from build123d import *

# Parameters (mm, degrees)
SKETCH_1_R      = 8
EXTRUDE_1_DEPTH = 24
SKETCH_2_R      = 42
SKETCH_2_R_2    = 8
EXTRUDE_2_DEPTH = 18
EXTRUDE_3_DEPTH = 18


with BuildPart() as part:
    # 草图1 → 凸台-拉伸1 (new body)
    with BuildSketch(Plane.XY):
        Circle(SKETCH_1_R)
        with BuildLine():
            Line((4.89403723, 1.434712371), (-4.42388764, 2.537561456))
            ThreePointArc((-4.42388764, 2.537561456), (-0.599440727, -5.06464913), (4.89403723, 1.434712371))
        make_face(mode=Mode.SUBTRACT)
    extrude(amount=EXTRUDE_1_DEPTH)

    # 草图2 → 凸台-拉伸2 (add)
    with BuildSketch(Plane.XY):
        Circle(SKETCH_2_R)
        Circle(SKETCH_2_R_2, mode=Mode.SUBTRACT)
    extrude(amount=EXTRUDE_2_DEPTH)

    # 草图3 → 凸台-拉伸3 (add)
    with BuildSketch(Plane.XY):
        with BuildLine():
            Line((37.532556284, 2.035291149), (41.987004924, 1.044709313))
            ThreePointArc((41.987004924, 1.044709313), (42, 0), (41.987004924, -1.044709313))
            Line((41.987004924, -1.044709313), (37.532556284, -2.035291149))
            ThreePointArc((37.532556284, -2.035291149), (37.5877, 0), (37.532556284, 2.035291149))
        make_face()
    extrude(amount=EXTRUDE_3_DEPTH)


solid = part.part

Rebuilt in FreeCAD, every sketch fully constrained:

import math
import FreeCAD as App
import Part
import Sketcher
Q = App.Units.Quantity

doc = App.newDocument("Part")
body = doc.addObject("PartDesign::Body", "Body")

# Sketch on XY plane
sketch1 = body.newObject("Sketcher::SketchObject", "Sketch")
sketch1.AttachmentSupport = (doc.getObject("XY_Plane"), [""])
sketch1.MapMode = "FlatFace"
sketch1.addGeometry([
    Part.Circle(App.Vector(0, 0, 0), App.Vector(0, 0, 1), 8),
    Part.LineSegment(App.Vector(-4, 3, 0), App.Vector(5, 1, 0)),
    Part.ArcOfCircle(Part.Circle(App.Vector(0, 0, 0), App.Vector(0, 0, 1), 5), math.radians(150), math.radians(376)),
], False)
sketch1.addConstraint([
    Sketcher.Constraint("Coincident", 1, 1, 2, 1),
    Sketcher.Constraint("Coincident", 2, 2, 1, 2),
    Sketcher.Constraint("Coincident", 0, 3, -1, 1),
    Sketcher.Constraint("Coincident", 2, 3, -1, 1),
    Sketcher.Constraint("Diameter", 0, 16.0),
    Sketcher.Constraint("Radius", 2, 5.1),
    Sketcher.Constraint("Angle", 1, Q("-6.75 deg")),
    Sketcher.Constraint("DistanceY", -1, 1, 1, 1, 2.537561),
])
pad1 = body.newObject("PartDesign::Pad", "Pad")
pad1.Profile = sketch1
pad1.Length = 24

# Sketch on XY plane
sketch2 = body.newObject("Sketcher::SketchObject", "Sketch001")
sketch2.AttachmentSupport = (doc.getObject("XY_Plane"), [""])
sketch2.MapMode = "FlatFace"
sketch2.addGeometry([
    Part.Circle(App.Vector(0, 0, 0), App.Vector(0, 0, 1), 42),
    Part.Circle(App.Vector(0, 0, 0), App.Vector(0, 0, 1), 8),
], False)
sketch2.addConstraint([
    Sketcher.Constraint("Coincident", 0, 3, -1, 1),
    Sketcher.Constraint("Coincident", 1, 3, -1, 1),
    Sketcher.Constraint("Diameter", 0, 84.0),
    Sketcher.Constraint("Diameter", 1, 16.0),
])
pad2 = body.newObject("PartDesign::Pad", "Pad001")
pad2.Profile = sketch2
pad2.Length = 18

# Sketch on XY plane
sketch3 = body.newObject("Sketcher::SketchObject", "Sketch002")
sketch3.AttachmentSupport = (doc.getObject("XY_Plane"), [""])
sketch3.MapMode = "FlatFace"
sketch3.addGeometry([
    Part.LineSegment(App.Vector(42, 1, 0), App.Vector(37.5, 2, 0)),
    Part.ArcOfCircle(Part.Circle(App.Vector(0, 0, 0), App.Vector(0, 0, 1), 37.6), math.radians(-3.1), math.radians(3.1)),
    Part.LineSegment(App.Vector(37.5, -2, 0), App.Vector(42, -1, 0)),
    Part.ArcOfCircle(Part.Circle(App.Vector(0, 0, 0), App.Vector(0, 0, 1), 42), math.radians(-1.43), math.radians(1.43)),
], False)
sketch3.addConstraint([
    Sketcher.Constraint("Coincident", 0, 2, 1, 2),
    Sketcher.Constraint("Coincident", 1, 1, 2, 1),
    Sketcher.Constraint("Coincident", 2, 2, 3, 1),
    Sketcher.Constraint("Coincident", 3, 2, 0, 1),
    Sketcher.Constraint("Coincident", 1, 3, -1, 1),
    Sketcher.Constraint("Coincident", 3, 3, -1, 1),
    Sketcher.Constraint("Vertical", 0, 2, 1, 1),
    Sketcher.Constraint("Vertical", 2, 2, 3, 2),
    Sketcher.Constraint("Radius", 3, 42.000001),
    Sketcher.Constraint("Radius", 1, 37.5877),
    Sketcher.Constraint("DistanceY", 2, 2, 0, 2, 3.08),
    Sketcher.Constraint("DistanceY", -1, 1, 0, 2, 2.035291),
])
pad3 = body.newObject("PartDesign::Pad", "Pad002")
pad3.Profile = sketch3
pad3.Length = 18

doc.recompute()
